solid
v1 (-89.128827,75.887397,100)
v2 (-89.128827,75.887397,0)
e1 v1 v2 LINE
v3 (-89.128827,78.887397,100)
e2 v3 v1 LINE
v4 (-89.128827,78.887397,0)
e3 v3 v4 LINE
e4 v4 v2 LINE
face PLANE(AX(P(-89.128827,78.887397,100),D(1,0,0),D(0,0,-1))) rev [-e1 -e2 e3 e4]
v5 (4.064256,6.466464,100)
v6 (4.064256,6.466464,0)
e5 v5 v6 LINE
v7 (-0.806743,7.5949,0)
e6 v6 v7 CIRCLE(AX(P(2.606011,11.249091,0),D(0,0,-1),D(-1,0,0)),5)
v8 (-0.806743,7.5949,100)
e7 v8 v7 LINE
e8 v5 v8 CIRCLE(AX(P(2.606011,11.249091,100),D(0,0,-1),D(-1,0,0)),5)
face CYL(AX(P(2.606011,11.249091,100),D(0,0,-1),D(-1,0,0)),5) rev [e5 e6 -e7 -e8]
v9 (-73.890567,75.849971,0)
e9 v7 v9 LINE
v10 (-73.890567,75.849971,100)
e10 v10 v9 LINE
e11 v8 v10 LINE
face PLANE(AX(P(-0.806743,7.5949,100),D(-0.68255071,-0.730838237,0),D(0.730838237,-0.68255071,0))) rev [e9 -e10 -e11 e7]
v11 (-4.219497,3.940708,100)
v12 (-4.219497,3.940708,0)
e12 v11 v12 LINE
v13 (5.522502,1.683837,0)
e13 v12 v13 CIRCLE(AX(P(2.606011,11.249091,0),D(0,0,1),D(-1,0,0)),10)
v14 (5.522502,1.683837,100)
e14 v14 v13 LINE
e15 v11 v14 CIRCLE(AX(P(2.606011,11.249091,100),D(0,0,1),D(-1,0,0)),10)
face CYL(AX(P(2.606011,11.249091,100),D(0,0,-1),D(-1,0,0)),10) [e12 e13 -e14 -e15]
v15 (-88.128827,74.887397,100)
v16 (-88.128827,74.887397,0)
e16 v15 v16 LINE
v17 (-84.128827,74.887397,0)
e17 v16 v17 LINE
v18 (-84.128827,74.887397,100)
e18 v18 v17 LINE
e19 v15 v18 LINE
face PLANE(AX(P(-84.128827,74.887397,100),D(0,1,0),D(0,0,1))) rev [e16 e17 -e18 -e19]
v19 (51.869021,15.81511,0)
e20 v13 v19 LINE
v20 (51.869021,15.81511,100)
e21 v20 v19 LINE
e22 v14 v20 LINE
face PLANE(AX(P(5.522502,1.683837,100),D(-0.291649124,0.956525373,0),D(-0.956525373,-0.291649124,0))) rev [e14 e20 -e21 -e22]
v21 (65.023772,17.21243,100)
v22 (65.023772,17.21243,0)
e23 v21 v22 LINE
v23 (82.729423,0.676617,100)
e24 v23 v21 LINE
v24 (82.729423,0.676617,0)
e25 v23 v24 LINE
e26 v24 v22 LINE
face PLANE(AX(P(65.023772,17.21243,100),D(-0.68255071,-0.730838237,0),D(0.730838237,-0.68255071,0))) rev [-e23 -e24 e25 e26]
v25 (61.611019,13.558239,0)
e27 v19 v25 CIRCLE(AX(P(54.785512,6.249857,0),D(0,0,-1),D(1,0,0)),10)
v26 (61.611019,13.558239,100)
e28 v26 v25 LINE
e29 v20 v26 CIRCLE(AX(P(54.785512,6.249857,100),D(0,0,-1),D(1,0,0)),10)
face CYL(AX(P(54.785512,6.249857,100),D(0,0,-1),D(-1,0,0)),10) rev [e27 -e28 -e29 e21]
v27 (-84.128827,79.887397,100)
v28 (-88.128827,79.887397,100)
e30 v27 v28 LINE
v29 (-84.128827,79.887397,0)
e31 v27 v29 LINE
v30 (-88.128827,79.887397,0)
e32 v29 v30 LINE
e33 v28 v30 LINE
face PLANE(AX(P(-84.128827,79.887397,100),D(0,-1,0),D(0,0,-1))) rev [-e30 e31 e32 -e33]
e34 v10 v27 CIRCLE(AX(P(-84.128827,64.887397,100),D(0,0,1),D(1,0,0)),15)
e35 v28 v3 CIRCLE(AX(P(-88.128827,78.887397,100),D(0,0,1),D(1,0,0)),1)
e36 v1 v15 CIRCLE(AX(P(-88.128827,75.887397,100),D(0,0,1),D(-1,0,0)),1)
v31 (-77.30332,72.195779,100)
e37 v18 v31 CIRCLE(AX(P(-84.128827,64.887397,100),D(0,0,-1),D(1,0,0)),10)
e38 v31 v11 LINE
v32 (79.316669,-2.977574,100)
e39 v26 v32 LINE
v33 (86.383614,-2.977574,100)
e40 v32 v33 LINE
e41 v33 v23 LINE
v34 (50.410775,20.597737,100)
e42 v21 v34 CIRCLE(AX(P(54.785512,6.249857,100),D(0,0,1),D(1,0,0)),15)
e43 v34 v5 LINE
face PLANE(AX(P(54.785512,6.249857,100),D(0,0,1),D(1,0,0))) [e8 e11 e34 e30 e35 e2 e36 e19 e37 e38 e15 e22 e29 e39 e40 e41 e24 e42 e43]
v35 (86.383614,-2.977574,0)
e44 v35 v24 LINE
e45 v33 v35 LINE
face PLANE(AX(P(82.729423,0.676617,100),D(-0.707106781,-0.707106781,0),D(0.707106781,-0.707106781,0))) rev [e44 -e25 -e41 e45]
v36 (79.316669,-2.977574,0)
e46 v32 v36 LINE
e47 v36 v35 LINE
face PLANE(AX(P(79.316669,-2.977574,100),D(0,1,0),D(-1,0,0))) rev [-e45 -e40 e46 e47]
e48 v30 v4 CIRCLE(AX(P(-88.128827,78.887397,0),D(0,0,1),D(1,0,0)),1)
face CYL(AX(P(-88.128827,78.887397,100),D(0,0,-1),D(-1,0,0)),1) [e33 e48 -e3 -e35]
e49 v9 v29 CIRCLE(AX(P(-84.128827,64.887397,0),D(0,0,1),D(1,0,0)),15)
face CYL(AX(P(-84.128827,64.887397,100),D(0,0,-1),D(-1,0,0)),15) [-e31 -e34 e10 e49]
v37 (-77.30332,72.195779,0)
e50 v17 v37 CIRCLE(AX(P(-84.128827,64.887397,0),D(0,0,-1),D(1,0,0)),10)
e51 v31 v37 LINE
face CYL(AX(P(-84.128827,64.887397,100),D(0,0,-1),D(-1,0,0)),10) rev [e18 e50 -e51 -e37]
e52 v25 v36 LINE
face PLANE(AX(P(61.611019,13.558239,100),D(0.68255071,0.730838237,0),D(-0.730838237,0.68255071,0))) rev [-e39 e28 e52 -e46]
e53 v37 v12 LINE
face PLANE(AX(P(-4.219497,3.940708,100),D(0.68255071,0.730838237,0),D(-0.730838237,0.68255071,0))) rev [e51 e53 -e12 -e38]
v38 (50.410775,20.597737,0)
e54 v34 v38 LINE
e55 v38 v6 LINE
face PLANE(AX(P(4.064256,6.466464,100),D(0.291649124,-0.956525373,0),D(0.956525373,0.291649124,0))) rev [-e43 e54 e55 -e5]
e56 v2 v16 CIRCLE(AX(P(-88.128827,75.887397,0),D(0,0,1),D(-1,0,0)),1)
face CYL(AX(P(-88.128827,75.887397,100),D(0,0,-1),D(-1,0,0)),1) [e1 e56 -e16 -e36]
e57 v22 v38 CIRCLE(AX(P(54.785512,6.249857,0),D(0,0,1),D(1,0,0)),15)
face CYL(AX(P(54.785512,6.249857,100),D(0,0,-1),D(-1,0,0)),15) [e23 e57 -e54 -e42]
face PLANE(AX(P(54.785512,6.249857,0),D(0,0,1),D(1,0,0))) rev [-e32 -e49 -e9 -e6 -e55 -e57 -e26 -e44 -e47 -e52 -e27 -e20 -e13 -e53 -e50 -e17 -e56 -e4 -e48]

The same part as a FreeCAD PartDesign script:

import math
import FreeCAD as App
import Part
import Sketcher

V = App.Vector
Q = App.Units.Quantity

doc = App.newDocument("Part")
body = doc.addObject("PartDesign::Body", "Body")

# Sketch on XY plane
sketch1 = doc.addObject("Sketcher::SketchObject", "Sketch")
body.addObject(sketch1)
sketch1.AttachmentSupport = (doc.XY_Plane, [""])
sketch1.MapMode = "FlatFace"
sketch1.addGeometry(Part.LineSegment(V(-77.3, 72.2, 0), V(-4.2, 3.9, 0)), False)
sketch1.addGeometry(Part.ArcOfCircle(Part.Circle(V(2.6, 11.2, 0), V(0, 0, 1), 10), math.radians(-133), math.radians(-73)), False)
sketch1.addGeometry(Part.LineSegment(V(5.5, 1.7, 0), V(51.9, 15.8, 0)), False)
sketch1.addGeometry(Part.ArcOfCircle(Part.Circle(V(54.8, 6.2, 0), V(0, 0, 1), 10), math.radians(47), math.radians(107)), False)
sketch1.addGeometry(Part.LineSegment(V(61.6, 13.6, 0), V(79.3, -3, 0)), False)
sketch1.addGeometry(Part.LineSegment(V(79.3, -3, 0), V(86.4, -3, 0)), False)
sketch1.addGeometry(Part.LineSegment(V(86.4, -3, 0), V(82.7, 0.7, 0)), False)
sketch1.addGeometry(Part.LineSegment(V(82.7, 0.7, 0), V(65, 17.2, 0)), False)
sketch1.addGeometry(Part.ArcOfCircle(Part.Circle(V(54.8, 6.2, 0), V(0, 0, 1), 15), math.radians(47), math.radians(107)), False)
sketch1.addGeometry(Part.LineSegment(V(50.4, 20.6, 0), V(4.1, 6.5, 0)), False)
sketch1.addGeometry(Part.ArcOfCircle(Part.Circle(V(2.6, 11.2, 0), V(0, 0, 1), 5), math.radians(-133), math.radians(-73)), False)
sketch1.addGeometry(Part.LineSegment(V(-0.8, 7.6, 0), V(-73.9, 75.8, 0)), False)
sketch1.addGeometry(Part.ArcOfCircle(Part.Circle(V(-84.1, 64.9, 0), V(0, 0, 1), 15), math.radians(47), math.radians(90)), False)
sketch1.addGeometry(Part.LineSegment(V(-84.1, 79.9, 0), V(-88.1, 79.9, 0)), False)
sketch1.addGeometry(Part.ArcOfCircle(Part.Circle(V(-88.1, 78.9, 0), V(0, 0, 1), 1), math.radians(90), math.radians(180)), False)
sketch1.addGeometry(Part.LineSegment(V(-89.1, 78.9, 0), V(-89.1, 75.9, 0)), False)
sketch1.addGeometry(Part.ArcOfCircle(Part.Circle(V(-88.1, 75.9, 0), V(0, 0, 1), 1), math.radians(180), math.radians(270)), False)
sketch1.addGeometry(Part.LineSegment(V(-88.1, 74.9, 0), V(-84.1, 74.9, 0)), False)
sketch1.addGeometry(Part.ArcOfCircle(Part.Circle(V(-84.1, 64.9, 0), V(0, 0, 1), 10), math.radians(47), math.radians(90)), False)
sketch1.addConstraint(Sketcher.Constraint("Tangent", 0, 2, 1, 1))
sketch1.addConstraint(Sketcher.Constraint("Tangent", 1, 2, 2, 1))
sketch1.addConstraint(Sketcher.Constraint("Tangent", 2, 2, 3, 2))
sketch1.addConstraint(Sketcher.Constraint("Tangent", 3, 1, 4, 1))
sketch1.addConstraint(Sketcher.Constraint("Coincident", 4, 2, 5, 1))
sketch1.addConstraint(Sketcher.Constraint("Coincident", 5, 2, 6, 1))
sketch1.addConstraint(Sketcher.Constraint("Coincident", 6, 2, 7, 1))
sketch1.addConstraint(Sketcher.Constraint("Tangent", 7, 2, 8, 1))
sketch1.addConstraint(Sketcher.Constraint("Tangent", 8, 2, 9, 1))
sketch1.addConstraint(Sketcher.Constraint("Tangent", 9, 2, 10, 2))
sketch1.addConstraint(Sketcher.Constraint("Tangent", 10, 1, 11, 1))
sketch1.addConstraint(Sketcher.Constraint("Tangent", 11, 2, 12, 1))
sketch1.addConstraint(Sketcher.Constraint("Tangent", 12, 2, 13, 1))
sketch1.addConstraint(Sketcher.Constraint("Tangent", 13, 2, 14, 1))
sketch1.addConstraint(Sketcher.Constraint("Tangent", 14, 2, 15, 1))
sketch1.addConstraint(Sketcher.Constraint("Tangent", 15, 2, 16, 1))
sketch1.addConstraint(Sketcher.Constraint("Tangent", 16, 2, 17, 1))
sketch1.addConstraint(Sketcher.Constraint("Tangent", 17, 2, 18, 2))
sketch1.addConstraint(Sketcher.Constraint("Tangent", 18, 1, 0, 1))
sketch1.addConstraint(Sketcher.Constraint("Horizontal", 5))
sketch1.addConstraint(Sketcher.Constraint("Horizontal", 13))
sketch1.addConstraint(Sketcher.Constraint("Vertical", 15))
sketch1.addConstraint(Sketcher.Constraint("Horizontal", 17))
sketch1.addConstraint(Sketcher.Constraint("Coincident", 8, 3, 3, 3))
sketch1.addConstraint(Sketcher.Constraint("Coincident", 10, 3, 1, 3))
sketch1.addConstraint(Sketcher.Constraint("Coincident", 18, 3, 12, 3))
sketch1.addConstraint(Sketcher.Constraint("Equal", 1, 3))
sketch1.addConstraint(Sketcher.Constraint("Equal", 8, 12))
sketch1.addConstraint(Sketcher.Constraint("Equal", 14, 16))
sketch1.addConstraint(Sketcher.Constraint("Equal", 3, 18))
sketch1.addConstraint(Sketcher.Constraint("Parallel", 0, 4))
sketch1.addConstraint(Sketcher.Constraint("Parallel", 4, 7))
sketch1.addConstraint(Sketcher.Constraint("Parallel", 2, 9))
sketch1.addConstraint(Sketcher.Constraint("Equal", 4, 7))
sketch1.addConstraint(Sketcher.Constraint("Radius", 1, Q("10 mm")))
sketch1.addConstraint(Sketcher.Constraint("Radius", 8, Q("15 mm")))
sketch1.addConstraint(Sketcher.Constraint("Radius", 14, Q("1 mm")))
sketch1.addConstraint(Sketcher.Constraint("DistanceX", 13, 2, 13, 1, Q("4 mm")))
sketch1.addConstraint(Sketcher.Constraint("Angle", 6, Q("135 deg")))
sketch1.addConstraint(Sketcher.Constraint("Distance", 0, Q("100 mm")))
sketch1.addConstraint(Sketcher.Constraint("DistanceX", 0, 2, 1, 2, Q("9.741998 mm")))
sketch1.addConstraint(Sketcher.Constraint("DistanceX", -1, 1, 1, 2, Q("5.522502 mm")))
sketch1.addConstraint(Sketcher.Constraint("DistanceY", -1, 1, 10, 1, Q("7.5949 mm")))
sketch1.addConstraint(Sketcher.Constraint("DistanceX", 1, 3, 3, 3, Q("52.179501 mm")))
sketch1.addConstraint(Sketcher.Constraint("DistanceY", 3, 1, 8, 2, Q("7.039498 mm")))
sketch1.addConstraint(Sketcher.Constraint("DistanceX", -1, 1, 4, 2, Q("79.316669 mm")))
pad1 = doc.addObject("PartDesign::Pad", "Pad")
body.addObject(pad1)
pad1.Profile = sketch1
pad1.Length = 100

doc.recompute()
